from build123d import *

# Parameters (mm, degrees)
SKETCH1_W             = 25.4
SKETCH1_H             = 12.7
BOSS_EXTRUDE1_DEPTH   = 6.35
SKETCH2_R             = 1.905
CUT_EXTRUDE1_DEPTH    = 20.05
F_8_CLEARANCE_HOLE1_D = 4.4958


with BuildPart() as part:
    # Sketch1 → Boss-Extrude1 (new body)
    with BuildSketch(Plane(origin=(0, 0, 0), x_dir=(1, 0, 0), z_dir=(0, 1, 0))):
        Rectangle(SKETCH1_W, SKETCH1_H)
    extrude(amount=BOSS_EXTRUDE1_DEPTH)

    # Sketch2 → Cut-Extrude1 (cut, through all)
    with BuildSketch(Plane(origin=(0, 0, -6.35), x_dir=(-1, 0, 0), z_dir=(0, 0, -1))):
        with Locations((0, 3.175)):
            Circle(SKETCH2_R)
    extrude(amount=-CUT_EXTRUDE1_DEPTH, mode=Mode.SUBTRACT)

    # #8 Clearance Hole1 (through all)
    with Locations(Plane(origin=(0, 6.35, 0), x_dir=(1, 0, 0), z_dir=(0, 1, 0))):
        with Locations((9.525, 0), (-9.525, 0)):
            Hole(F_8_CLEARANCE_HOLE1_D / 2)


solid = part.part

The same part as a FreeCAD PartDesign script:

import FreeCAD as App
import Part
import Sketcher
Q = App.Units.Quantity

doc = App.newDocument("Part")
body = doc.addObject("PartDesign::Body", "Body")

# Sketch on XZ plane
sketch1 = doc.addObject("Sketcher::SketchObject", "Sketch")
body.addObject(sketch1)
sketch1.AttachmentSupport = (doc.XZ_Plane, [""])
sketch1.MapMode = "FlatFace"
sketch1.addGeometry(Part.LineSegment(App.Vector(-13, -6, 0), App.Vector(-13, 6, 0)), False)
sketch1.addGeometry(Part.LineSegment(App.Vector(-13, 6, 0), App.Vector(13, 6, 0)), False)
sketch1.addGeometry(Part.LineSegment(App.Vector(13, 6, 0), App.Vector(13, -6, 0)), False)
sketch1.addGeometry(Part.LineSegment(App.Vector(13, -6, 0), App.Vector(-13, -6, 0)), False)
sketch1.addConstraint(Sketcher.Constraint("Coincident", 0, 2, 1, 1))
sketch1.addConstraint(Sketcher.Constraint("Coincident", 1, 2, 2, 1))
sketch1.addConstraint(Sketcher.Constraint("Coincident", 2, 2, 3, 1))
sketch1.addConstraint(Sketcher.Constraint("Coincident", 3, 2, 0, 1))
sketch1.addConstraint(Sketcher.Constraint("Vertical", 0))
sketch1.addConstraint(Sketcher.Constraint("Horizontal", 1))
sketch1.addConstraint(Sketcher.Constraint("Vertical", 2))
sketch1.addConstraint(Sketcher.Constraint("Horizontal", 3))
sketch1.addConstraint(Sketcher.Constraint("Symmetric", 0, 2, 2, 2, -1, 1))
sketch1.addConstraint(Sketcher.Constraint("DistanceX", 1, 1, 1, 2, Q("1 in")))
sketch1.addConstraint(Sketcher.Constraint("DistanceY", 0, 1, 0, 2, Q("0.5 in")))
pad1 = doc.addObject("PartDesign::Pad", "Pad")
body.addObject(pad1)
pad1.Profile = sketch1
pad1.Length = Q("0.25 in")
pad1.Reversed = True

# Sketch on XY plane
sketch2 = doc.addObject("Sketcher::SketchObject", "Sketch001")
body.addObject(sketch2)
sketch2.AttachmentSupport = (doc.XY_Plane, [""])
sketch2.MapMode = "FlatFace"
sketch2.AttachmentOffset = App.Placement(App.Vector(0, 0, -0.25 * 25.4), App.Rotation())
sketch2.addGeometry(Part.Circle(App.Vector(0, 3.2, 0), App.Vector(0, 0, 1), 1.9), False)
sketch2.addConstraint(Sketcher.Constraint("PointOnObject", 0, 3, -2))
sketch2.addConstraint(Sketcher.Constraint("Diameter", 0, Q("0.15 in")))
sketch2.addConstraint(Sketcher.Constraint("DistanceY", -1, 1, 0, 3, Q("0.125 in")))
pocket1 = doc.addObject("PartDesign::Pocket", "Pocket")
body.addObject(pocket1)
pocket1.Profile = sketch2
pocket1.Type = "ThroughAll"
pocket1.Reversed = True

# Sketch on XZ plane
sketch3 = doc.addObject("Sketcher::SketchObject", "Sketch002")
body.addObject(sketch3)
sketch3.AttachmentSupport = (doc.XZ_Plane, [""])
sketch3.MapMode = "FlatFace"
sketch3.AttachmentOffset = App.Placement(App.Vector(0, 0, -0.25 * 25.4), App.Rotation())
sketch3.addGeometry(Part.Circle(App.Vector(9.5, 0, 0), App.Vector(0, 0, 1), 2.2), False)
sketch3.addGeometry(Part.Circle(App.Vector(-9.5, 0, 0), App.Vector(0, 0, 1), 2.2), False)
sketch3.addConstraint(Sketcher.Constraint("Equal", 0, 1))
sketch3.addConstraint(Sketcher.Constraint("Symmetric", 0, 3, 1, 3, -1, 1))
sketch3.addConstraint(Sketcher.Constraint("PointOnObject", 0, 3, -1))
sketch3.addConstraint(Sketcher.Constraint("Diameter", 0, Q("0.177 in")))
sketch3.addConstraint(Sketcher.Constraint("DistanceX", 1, 3, 0, 3, Q("0.75 in")))
doc.recompute()
hole = doc.addObject("PartDesign::Hole", "Hole")
body.addObject(hole)
hole.Profile = sketch3
hole.ThreadType = "None"
hole.Diameter = Q("0.177 in")
hole.DepthType = "ThroughAll"
hole.Reversed = True

doc.recompute()
